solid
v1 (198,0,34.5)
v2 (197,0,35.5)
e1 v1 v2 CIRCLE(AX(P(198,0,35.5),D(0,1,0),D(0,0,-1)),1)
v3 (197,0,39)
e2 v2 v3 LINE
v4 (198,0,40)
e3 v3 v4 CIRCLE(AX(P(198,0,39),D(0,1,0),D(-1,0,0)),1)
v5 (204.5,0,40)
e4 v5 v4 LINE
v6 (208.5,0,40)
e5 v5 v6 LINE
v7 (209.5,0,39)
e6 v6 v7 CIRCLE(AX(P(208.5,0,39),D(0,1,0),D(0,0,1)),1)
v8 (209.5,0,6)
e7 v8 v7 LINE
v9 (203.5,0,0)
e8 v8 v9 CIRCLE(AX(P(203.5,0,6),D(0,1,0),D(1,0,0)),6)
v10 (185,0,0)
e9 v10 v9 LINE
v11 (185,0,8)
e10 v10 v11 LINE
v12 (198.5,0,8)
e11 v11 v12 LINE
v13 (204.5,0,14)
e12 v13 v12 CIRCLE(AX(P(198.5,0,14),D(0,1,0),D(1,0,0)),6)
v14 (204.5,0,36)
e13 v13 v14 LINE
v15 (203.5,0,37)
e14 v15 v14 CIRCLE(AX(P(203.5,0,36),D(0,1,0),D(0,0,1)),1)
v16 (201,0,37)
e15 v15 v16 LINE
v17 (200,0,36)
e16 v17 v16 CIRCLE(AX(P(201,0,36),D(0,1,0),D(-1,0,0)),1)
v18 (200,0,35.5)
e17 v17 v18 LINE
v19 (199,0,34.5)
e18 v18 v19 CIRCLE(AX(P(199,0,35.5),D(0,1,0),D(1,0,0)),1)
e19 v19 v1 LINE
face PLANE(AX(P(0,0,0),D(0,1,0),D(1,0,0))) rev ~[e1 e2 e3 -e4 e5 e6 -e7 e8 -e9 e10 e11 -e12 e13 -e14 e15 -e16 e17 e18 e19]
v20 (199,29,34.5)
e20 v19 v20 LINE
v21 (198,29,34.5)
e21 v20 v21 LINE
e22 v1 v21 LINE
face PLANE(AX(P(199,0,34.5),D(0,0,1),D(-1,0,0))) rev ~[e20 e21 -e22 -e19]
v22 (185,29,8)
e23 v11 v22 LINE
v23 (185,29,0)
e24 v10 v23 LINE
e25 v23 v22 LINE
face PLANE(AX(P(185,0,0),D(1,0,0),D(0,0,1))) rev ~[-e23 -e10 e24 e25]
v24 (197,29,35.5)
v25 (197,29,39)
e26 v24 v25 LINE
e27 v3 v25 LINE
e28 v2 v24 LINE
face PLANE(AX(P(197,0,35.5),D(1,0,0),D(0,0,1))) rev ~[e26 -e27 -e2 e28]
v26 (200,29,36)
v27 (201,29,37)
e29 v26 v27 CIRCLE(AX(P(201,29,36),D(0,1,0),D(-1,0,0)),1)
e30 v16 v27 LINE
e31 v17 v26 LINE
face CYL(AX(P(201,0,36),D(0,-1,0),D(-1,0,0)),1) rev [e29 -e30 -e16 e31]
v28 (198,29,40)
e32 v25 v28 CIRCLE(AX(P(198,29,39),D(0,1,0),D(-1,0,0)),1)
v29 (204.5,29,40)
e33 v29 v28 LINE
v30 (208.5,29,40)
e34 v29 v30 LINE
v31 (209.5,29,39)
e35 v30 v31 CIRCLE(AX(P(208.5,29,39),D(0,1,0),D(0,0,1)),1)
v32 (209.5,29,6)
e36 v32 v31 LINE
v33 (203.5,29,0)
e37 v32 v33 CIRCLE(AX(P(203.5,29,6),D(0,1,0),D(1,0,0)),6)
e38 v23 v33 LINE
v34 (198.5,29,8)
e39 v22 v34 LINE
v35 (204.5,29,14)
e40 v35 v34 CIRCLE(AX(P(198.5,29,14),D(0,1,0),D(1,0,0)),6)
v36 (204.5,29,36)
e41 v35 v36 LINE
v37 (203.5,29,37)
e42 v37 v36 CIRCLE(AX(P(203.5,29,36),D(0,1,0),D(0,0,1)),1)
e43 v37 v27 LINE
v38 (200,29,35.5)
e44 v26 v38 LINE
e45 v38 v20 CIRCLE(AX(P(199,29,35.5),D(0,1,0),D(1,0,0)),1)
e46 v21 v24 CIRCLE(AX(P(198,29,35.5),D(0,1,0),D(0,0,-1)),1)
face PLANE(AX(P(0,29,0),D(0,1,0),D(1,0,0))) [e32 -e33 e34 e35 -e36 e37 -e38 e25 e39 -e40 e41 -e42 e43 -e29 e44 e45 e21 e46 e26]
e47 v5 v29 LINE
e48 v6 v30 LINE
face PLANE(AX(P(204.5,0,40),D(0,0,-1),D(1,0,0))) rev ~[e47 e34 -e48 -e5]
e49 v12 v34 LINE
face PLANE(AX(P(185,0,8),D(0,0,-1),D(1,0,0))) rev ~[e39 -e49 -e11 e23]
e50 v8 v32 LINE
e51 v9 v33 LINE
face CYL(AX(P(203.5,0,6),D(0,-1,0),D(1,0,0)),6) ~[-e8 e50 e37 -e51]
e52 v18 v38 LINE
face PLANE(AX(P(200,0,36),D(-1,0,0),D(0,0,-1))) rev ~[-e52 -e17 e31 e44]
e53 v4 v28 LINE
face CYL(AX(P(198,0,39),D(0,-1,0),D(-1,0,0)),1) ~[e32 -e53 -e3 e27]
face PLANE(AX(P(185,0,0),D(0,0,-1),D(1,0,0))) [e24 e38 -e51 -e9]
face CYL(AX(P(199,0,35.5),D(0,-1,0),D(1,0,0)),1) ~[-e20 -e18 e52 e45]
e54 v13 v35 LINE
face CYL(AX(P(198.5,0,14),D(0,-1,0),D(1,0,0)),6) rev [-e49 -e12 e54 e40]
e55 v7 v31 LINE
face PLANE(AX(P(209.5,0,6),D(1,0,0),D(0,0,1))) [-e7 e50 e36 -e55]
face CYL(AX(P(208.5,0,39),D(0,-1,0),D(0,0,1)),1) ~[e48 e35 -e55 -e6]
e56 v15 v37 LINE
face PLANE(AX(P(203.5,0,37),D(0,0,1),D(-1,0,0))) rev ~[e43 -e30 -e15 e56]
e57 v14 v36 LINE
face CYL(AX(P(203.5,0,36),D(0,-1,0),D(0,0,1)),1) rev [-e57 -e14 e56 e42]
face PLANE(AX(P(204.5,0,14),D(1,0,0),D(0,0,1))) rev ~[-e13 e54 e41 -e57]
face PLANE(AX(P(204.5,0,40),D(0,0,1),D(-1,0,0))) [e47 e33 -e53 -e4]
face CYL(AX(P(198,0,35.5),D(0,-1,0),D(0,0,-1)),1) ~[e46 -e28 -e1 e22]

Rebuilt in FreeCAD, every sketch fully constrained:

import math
import FreeCAD as App
import Part
import Sketcher

V = App.Vector

doc = App.newDocument("Part")
params = doc.addObject("Spreadsheet::Sheet", "Params")
for row, (alias, value) in enumerate([
    ("sketch1_radius", "6 mm"),
    ("sketch1_radius2", "1 mm"),
    ("sketch1_width", "1 mm"),
    ("sketch1_width2", "2.5 mm"),
    ("sketch1_height", "8 mm"),
    ("pad1_length", "29 mm"),
], start=1):
    params.set(f"A{row}", alias)
    params.set(f"B{row}", "=" + value)
    params.setAlias(f"B{row}", alias)

body = doc.addObject("PartDesign::Body", "Body")

# Sketch on XZ plane
sketch1 = body.newObject("Sketcher::SketchObject", "Sketch")
sketch1.AttachmentSupport = (doc.getObject("XZ_Plane"), [""])
sketch1.MapMode = "FlatFace"
sketch1.addGeometry(Part.LineSegment(V(203.5, 0, 0), V(185, 0, 0)), False)
sketch1.addGeometry(Part.LineSegment(V(185, 0, 0), V(185, 8, 0)), False)
sketch1.addGeometry(Part.LineSegment(V(185, 8, 0), V(198.5, 8, 0)), False)
sketch1.addGeometry(Part.ArcOfCircle(Part.Circle(V(198.5, 14, 0), V(0, 0, 1), 6), math.radians(-90), math.radians(0)), False)
sketch1.addGeometry(Part.LineSegment(V(204.5, 14, 0), V(204.5, 36, 0)), False)
sketch1.addGeometry(Part.ArcOfCircle(Part.Circle(V(203.5, 36, 0), V(0, 0, 1), 1), math.radians(0), math.radians(90)), False)
sketch1.addGeometry(Part.LineSegment(V(203.5, 37, 0), V(201, 37, 0)), False)
sketch1.addGeometry(Part.ArcOfCircle(Part.Circle(V(201, 36, 0), V(0, 0, 1), 1), math.radians(90), math.radians(180)), False)
sketch1.addGeometry(Part.LineSegment(V(200, 36, 0), V(200, 35.5, 0)), False)
sketch1.addGeometry(Part.ArcOfCircle(Part.Circle(V(199, 35.5, 0), V(0, 0, 1), 1), math.radians(-90), math.radians(0)), False)
sketch1.addGeometry(Part.LineSegment(V(199, 34.5, 0), V(198, 34.5, 0)), False)
sketch1.addGeometry(Part.ArcOfCircle(Part.Circle(V(198, 35.5, 0), V(0, 0, 1), 1), math.radians(180), math.radians(270)), False)
sketch1.addGeometry(Part.LineSegment(V(197, 35.5, 0), V(197, 39, 0)), False)
sketch1.addGeometry(Part.ArcOfCircle(Part.Circle(V(198, 39, 0), V(0, 0, 1), 1), math.radians(90), math.radians(180)), False)
sketch1.addGeometry(Part.LineSegment(V(198, 40, 0), V(208.5, 40, 0)), False)
sketch1.addGeometry(Part.ArcOfCircle(Part.Circle(V(208.5, 39, 0), V(0, 0, 1), 1), math.radians(0), math.radians(90)), False)
sketch1.addGeometry(Part.LineSegment(V(209.5, 39, 0), V(209.5, 6, 0)), False)
sketch1.addGeometry(Part.ArcOfCircle(Part.Circle(V(203.5, 6, 0), V(0, 0, 1), 6), math.radians(-90), math.radians(0)), False)
sketch1.addConstraint(Sketcher.Constraint("Coincident", 0, 2, 1, 1))
sketch1.addConstraint(Sketcher.Constraint("Coincident", 1, 2, 2, 1))
sketch1.addConstraint(Sketcher.Constraint("Tangent", 2, 2, 3, 1))
sketch1.addConstraint(Sketcher.Constraint("Tangent", 3, 2, 4, 1))
sketch1.addConstraint(Sketcher.Constraint("Tangent", 4, 2, 5, 1))
sketch1.addConstraint(Sketcher.Constraint("Tangent", 5, 2, 6, 1))
sketch1.addConstraint(Sketcher.Constraint("Tangent", 6, 2, 7, 1))
sketch1.addConstraint(Sketcher.Constraint("Tangent", 7, 2, 8, 1))
sketch1.addConstraint(Sketcher.Constraint("Tangent", 8, 2, 9, 2))
sketch1.addConstraint(Sketcher.Constraint("Tangent", 9, 1, 10, 1))
sketch1.addConstraint(Sketcher.Constraint("Tangent", 10, 2, 11, 2))
sketch1.addConstraint(Sketcher.Constraint("Tangent", 11, 1, 12, 1))
sketch1.addConstraint(Sketcher.Constraint("Tangent", 12, 2, 13, 2))
sketch1.addConstraint(Sketcher.Constraint("Tangent", 13, 1, 14, 1))
sketch1.addConstraint(Sketcher.Constraint("Tangent", 14, 2, 15, 2))
sketch1.addConstraint(Sketcher.Constraint("Tangent", 15, 1, 16, 1))
sketch1.addConstraint(Sketcher.Constraint("Tangent", 16, 2, 17, 2))
sketch1.addConstraint(Sketcher.Constraint("Tangent", 17, 1, 0, 1))
sketch1.addConstraint(Sketcher.Constraint("Horizontal", 0))
sketch1.addConstraint(Sketcher.Constraint("Vertical", 1))
sketch1.addConstraint(Sketcher.Constraint("Horizontal", 2))
sketch1.addConstraint(Sketcher.Constraint("Vertical", 4))
sketch1.addConstraint(Sketcher.Constraint("Horizontal", 6))
sketch1.addConstraint(Sketcher.Constraint("Vertical", 8))
sketch1.addConstraint(Sketcher.Constraint("Horizontal", 10))
sketch1.addConstraint(Sketcher.Constraint("Vertical", 12))
sketch1.addConstraint(Sketcher.Constraint("Horizontal", 14))
sketch1.addConstraint(Sketcher.Constraint("Vertical", 16))
sketch1.addConstraint(Sketcher.Constraint("Equal", 5, 7))
sketch1.addConstraint(Sketcher.Constraint("Equal", 7, 9))
sketch1.addConstraint(Sketcher.Constraint("Equal", 9, 11))
sketch1.addConstraint(Sketcher.Constraint("Equal", 11, 13))
sketch1.addConstraint(Sketcher.Constraint("Equal", 13, 15))
sketch1.addConstraint(Sketcher.Constraint("Equal", 3, 17))
sketch1.addConstraint(Sketcher.Constraint("PointOnObject", 0, 2, -1))
sketch1.addConstraint(Sketcher.Constraint("Vertical", 5, 3, 17, 3))
sketch1.addConstraint(Sketcher.Constraint("Radius", 3, 6.0))
sketch1.addConstraint(Sketcher.Constraint("Radius", 5, 1.0))
sketch1.addConstraint(Sketcher.Constraint("DistanceX", 10, 2, 10, 1, 1.0))
sketch1.addConstraint(Sketcher.Constraint("DistanceX", 6, 2, 6, 1, 2.5))
sketch1.addConstraint(Sketcher.Constraint("DistanceY", -1, 1, 13, 1, 40.0))
sketch1.addConstraint(Sketcher.Constraint("DistanceY", 7, 3, 13, 3, 3.0))
sketch1.addConstraint(Sketcher.Constraint("DistanceY", 1, 1, 1, 2, 8.0))
sketch1.addConstraint(Sketcher.Constraint("DistanceX", 0, 2, 0, 1, 18.5))
sketch1.addConstraint(Sketcher.Constraint("DistanceY", 8, 2, 8, 1, 0.5))
sketch1.addConstraint(Sketcher.Constraint("DistanceX", -1, 1, 7, 3, 201.0))
sketch1.setExpression("Constraints[36]", "Params.sketch1_radius")
sketch1.setExpression("Constraints[37]", "Params.sketch1_radius2")
sketch1.setExpression("Constraints[38]", "Params.sketch1_width")
sketch1.setExpression("Constraints[39]", "Params.sketch1_width2")
sketch1.setExpression("Constraints[42]", "Params.sketch1_height")
pad1 = body.newObject("PartDesign::Pad", "Pad")
pad1.Profile = sketch1
pad1.setExpression("Length", "Params.pad1_length")
pad1.Reversed = True

doc.recompute()
